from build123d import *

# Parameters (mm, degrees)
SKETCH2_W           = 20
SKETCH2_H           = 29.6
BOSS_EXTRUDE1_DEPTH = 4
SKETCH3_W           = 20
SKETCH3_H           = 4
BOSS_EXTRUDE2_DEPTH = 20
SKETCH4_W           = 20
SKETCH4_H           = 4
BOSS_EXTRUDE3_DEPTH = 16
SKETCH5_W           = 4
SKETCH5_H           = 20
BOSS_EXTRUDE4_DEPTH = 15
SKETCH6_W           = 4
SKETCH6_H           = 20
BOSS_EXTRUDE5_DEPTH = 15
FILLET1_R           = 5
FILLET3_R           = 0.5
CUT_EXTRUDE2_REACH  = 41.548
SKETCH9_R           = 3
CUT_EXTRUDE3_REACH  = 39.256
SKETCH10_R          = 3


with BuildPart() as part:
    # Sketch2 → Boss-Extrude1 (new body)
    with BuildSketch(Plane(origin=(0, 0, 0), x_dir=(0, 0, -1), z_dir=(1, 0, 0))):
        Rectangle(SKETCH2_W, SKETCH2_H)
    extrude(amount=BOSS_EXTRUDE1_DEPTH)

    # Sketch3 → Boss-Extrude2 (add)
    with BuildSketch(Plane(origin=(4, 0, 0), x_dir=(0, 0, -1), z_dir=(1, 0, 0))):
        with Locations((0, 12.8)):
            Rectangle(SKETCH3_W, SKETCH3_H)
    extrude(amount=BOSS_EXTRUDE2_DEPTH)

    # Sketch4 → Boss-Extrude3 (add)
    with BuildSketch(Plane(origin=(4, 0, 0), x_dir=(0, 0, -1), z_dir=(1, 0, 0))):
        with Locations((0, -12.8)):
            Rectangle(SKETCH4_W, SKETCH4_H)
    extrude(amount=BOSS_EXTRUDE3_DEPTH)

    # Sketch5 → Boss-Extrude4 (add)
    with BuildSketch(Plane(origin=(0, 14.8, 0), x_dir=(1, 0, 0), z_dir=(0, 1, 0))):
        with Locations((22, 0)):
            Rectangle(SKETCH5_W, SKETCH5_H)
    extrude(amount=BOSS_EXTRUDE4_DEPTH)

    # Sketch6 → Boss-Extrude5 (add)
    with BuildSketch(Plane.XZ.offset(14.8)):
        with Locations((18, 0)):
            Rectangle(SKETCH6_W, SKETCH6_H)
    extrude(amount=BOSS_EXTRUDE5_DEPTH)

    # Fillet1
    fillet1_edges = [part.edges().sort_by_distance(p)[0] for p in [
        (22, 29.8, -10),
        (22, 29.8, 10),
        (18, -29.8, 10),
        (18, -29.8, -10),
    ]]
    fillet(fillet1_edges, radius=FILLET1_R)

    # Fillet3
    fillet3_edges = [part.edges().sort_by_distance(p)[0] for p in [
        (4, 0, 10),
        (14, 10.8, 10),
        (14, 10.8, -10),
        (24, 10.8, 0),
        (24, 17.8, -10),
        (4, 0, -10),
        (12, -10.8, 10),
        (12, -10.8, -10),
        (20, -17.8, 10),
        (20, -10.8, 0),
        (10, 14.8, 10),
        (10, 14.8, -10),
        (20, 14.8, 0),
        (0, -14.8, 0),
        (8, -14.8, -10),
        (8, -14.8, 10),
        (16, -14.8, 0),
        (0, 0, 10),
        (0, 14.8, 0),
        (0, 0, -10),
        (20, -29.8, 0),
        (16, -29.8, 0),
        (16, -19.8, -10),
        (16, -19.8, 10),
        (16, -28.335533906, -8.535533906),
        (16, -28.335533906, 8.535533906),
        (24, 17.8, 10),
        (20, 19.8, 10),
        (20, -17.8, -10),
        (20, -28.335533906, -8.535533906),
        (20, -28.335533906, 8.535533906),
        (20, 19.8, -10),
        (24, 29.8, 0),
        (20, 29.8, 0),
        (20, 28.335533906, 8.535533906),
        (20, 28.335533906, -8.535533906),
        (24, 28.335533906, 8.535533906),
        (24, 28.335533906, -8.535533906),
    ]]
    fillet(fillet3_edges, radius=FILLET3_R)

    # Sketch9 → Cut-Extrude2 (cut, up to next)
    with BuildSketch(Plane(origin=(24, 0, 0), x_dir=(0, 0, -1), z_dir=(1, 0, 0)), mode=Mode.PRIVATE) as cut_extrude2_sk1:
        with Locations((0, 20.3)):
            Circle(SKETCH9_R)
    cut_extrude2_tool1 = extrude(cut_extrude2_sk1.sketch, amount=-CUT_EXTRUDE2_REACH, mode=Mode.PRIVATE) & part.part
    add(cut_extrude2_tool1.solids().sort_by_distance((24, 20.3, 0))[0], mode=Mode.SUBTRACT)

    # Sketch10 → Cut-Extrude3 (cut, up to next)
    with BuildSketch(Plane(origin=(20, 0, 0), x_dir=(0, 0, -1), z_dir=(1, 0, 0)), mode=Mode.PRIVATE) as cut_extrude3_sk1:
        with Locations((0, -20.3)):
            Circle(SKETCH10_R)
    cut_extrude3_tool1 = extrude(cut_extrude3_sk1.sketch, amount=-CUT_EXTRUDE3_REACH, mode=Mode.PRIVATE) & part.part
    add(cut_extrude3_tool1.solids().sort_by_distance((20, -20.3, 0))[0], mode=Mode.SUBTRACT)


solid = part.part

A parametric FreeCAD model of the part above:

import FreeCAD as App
import Part
import Sketcher

V = App.Vector


def edges_at(feature, points):
    """Names of the edges that pass closest to the given points."""
    edges = feature.Shape.Edges
    near = lambda p: min(range(len(edges)), key=lambda i: edges[i].distToShape(Part.Vertex(*p))[0])
    return sorted({f"Edge{near(p) + 1}" for p in points})

doc = App.newDocument("Part")
body = doc.addObject("PartDesign::Body", "Body")

# Sketch on YZ plane
sketch1 = doc.addObject("Sketcher::SketchObject", "Sketch")
body.addObject(sketch1)
sketch1.AttachmentSupport = (doc.YZ_Plane, [""])
sketch1.MapMode = "FlatFace"
sketch1.addGeometry([
    Part.LineSegment(V(15, 10, 0), V(-15, 10, 0)),
    Part.LineSegment(V(-15, 10, 0), V(-15, -10, 0)),
    Part.LineSegment(V(-15, -10, 0), V(15, -10, 0)),
    Part.LineSegment(V(15, -10, 0), V(15, 10, 0)),
], False)
sketch1.addConstraint([
    Sketcher.Constraint("Coincident", 0, 2, 1, 1),
    Sketcher.Constraint("Coincident", 1, 2, 2, 1),
    Sketcher.Constraint("Coincident", 2, 2, 3, 1),
    Sketcher.Constraint("Coincident", 3, 2, 0, 1),
    Sketcher.Constraint("Horizontal", 0),
    Sketcher.Constraint("Vertical", 1),
    Sketcher.Constraint("Horizontal", 2),
    Sketcher.Constraint("Vertical", 3),
    Sketcher.Constraint("Symmetric", 0, 2, 2, 2, -1, 1),
    Sketcher.Constraint("DistanceY", 1, 2, 1, 1, 20.0),
    Sketcher.Constraint("DistanceX", 0, 2, 0, 1, 29.6),
])
pad1 = doc.addObject("PartDesign::Pad", "Pad")
body.addObject(pad1)
pad1.Profile = sketch1
pad1.Length = 4

# Sketch on YZ plane
sketch2 = doc.addObject("Sketcher::SketchObject", "Sketch001")
body.addObject(sketch2)
sketch2.AttachmentSupport = (doc.YZ_Plane, [""])
sketch2.MapMode = "FlatFace"
sketch2.AttachmentOffset = App.Placement(V(0, 0, 4), App.Rotation())
sketch2.addGeometry([
    Part.LineSegment(V(14.8, 10, 0), V(10.8, 10, 0)),
    Part.LineSegment(V(10.8, 10, 0), V(10.8, -10, 0)),
    Part.LineSegment(V(10.8, -10, 0), V(14.8, -10, 0)),
    Part.LineSegment(V(14.8, -10, 0), V(14.8, 10, 0)),
], False)
sketch2.addConstraint([
    Sketcher.Constraint("Coincident", 0, 2, 1, 1),
    Sketcher.Constraint("Coincident", 1, 2, 2, 1),
    Sketcher.Constraint("Coincident", 2, 2, 3, 1),
    Sketcher.Constraint("Coincident", 3, 2, 0, 1),
    Sketcher.Constraint("Horizontal", 0),
    Sketcher.Constraint("Vertical", 1),
    Sketcher.Constraint("Horizontal", 2),
    Sketcher.Constraint("Vertical", 3),
    Sketcher.Constraint("DistanceX", 0, 2, 0, 1, 4.0),
    Sketcher.Constraint("DistanceY", 1, 2, 1, 1, 20.0),
    Sketcher.Constraint("DistanceY", -1, 1, 0, 2, 10.0),
    Sketcher.Constraint("DistanceX", -1, 1, 0, 2, 10.8),
])
pad2 = doc.addObject("PartDesign::Pad", "Pad001")
body.addObject(pad2)
pad2.Profile = sketch2
pad2.Length = 20

# Sketch on YZ plane
sketch3 = doc.addObject("Sketcher::SketchObject", "Sketch002")
body.addObject(sketch3)
sketch3.AttachmentSupport = (doc.YZ_Plane, [""])
sketch3.MapMode = "FlatFace"
sketch3.AttachmentOffset = App.Placement(V(0, 0, 4), App.Rotation())
sketch3.addGeometry([
    Part.LineSegment(V(-10.8, 10, 0), V(-14.8, 10, 0)),
    Part.LineSegment(V(-14.8, 10, 0), V(-14.8, -10, 0)),
    Part.LineSegment(V(-14.8, -10, 0), V(-10.8, -10, 0)),
    Part.LineSegment(V(-10.8, -10, 0), V(-10.8, 10, 0)),
], False)
sketch3.addConstraint([
    Sketcher.Constraint("Coincident", 0, 2, 1, 1),
    Sketcher.Constraint("Coincident", 1, 2, 2, 1),
    Sketcher.Constraint("Coincident", 2, 2, 3, 1),
    Sketcher.Constraint("Coincident", 3, 2, 0, 1),
    Sketcher.Constraint("Horizontal", 0),
    Sketcher.Constraint("Vertical", 1),
    Sketcher.Constraint("Horizontal", 2),
    Sketcher.Constraint("Vertical", 3),
    Sketcher.Constraint("DistanceX", 0, 2, 0, 1, 4.0),
    Sketcher.Constraint("DistanceY", 1, 2, 1, 1, 20.0),
    Sketcher.Constraint("DistanceY", -1, 1, 0, 2, 10.0),
    Sketcher.Constraint("DistanceX", 0, 2, -1, 1, 14.8),
])
pad3 = doc.addObject("PartDesign::Pad", "Pad002")
body.addObject(pad3)
pad3.Profile = sketch3
pad3.Length = 16

# Sketch on XZ plane
sketch4 = doc.addObject("Sketcher::SketchObject", "Sketch003")
body.addObject(sketch4)
sketch4.AttachmentSupport = (doc.XZ_Plane, [""])
sketch4.MapMode = "FlatFace"
sketch4.AttachmentOffset = App.Placement(V(0, 0, -14.8), App.Rotation())
sketch4.addGeometry([
    Part.LineSegment(V(20, -10, 0), V(20, 10, 0)),
    Part.LineSegment(V(20, 10, 0), V(24, 10, 0)),
    Part.LineSegment(V(24, 10, 0), V(24, -10, 0)),
    Part.LineSegment(V(24, -10, 0), V(20, -10, 0)),
], False)
sketch4.addConstraint([
    Sketcher.Constraint("Coincident", 0, 2, 1, 1),
    Sketcher.Constraint("Coincident", 1, 2, 2, 1),
    Sketcher.Constraint("Coincident", 2, 2, 3, 1),
    Sketcher.Constraint("Coincident", 3, 2, 0, 1),
    Sketcher.Constraint("Vertical", 0),
    Sketcher.Constraint("Horizontal", 1),
    Sketcher.Constraint("Vertical", 2),
    Sketcher.Constraint("Horizontal", 3),
    Sketcher.Constraint("DistanceX", 1, 1, 1, 2, 4.0),
    Sketcher.Constraint("DistanceY", 0, 1, 0, 2, 20.0),
    Sketcher.Constraint("DistanceX", -1, 1, 0, 2, 20.0),
    Sketcher.Constraint("DistanceY", -1, 1, 0, 2, 10.0),
])
pad4 = doc.addObject("PartDesign::Pad", "Pad003")
body.addObject(pad4)
pad4.Profile = sketch4
pad4.Length = 15
pad4.Reversed = True

# Sketch on XZ plane
sketch5 = doc.addObject("Sketcher::SketchObject", "Sketch004")
body.addObject(sketch5)
sketch5.AttachmentSupport = (doc.XZ_Plane, [""])
sketch5.MapMode = "FlatFace"
sketch5.AttachmentOffset = App.Placement(V(0, 0, 14.8), App.Rotation())
sketch5.addGeometry([
    Part.LineSegment(V(16, 10, 0), V(16, -10, 0)),
    Part.LineSegment(V(16, -10, 0), V(20, -10, 0)),
    Part.LineSegment(V(20, -10, 0), V(20, 10, 0)),
    Part.LineSegment(V(20, 10, 0), V(16, 10, 0)),
], False)
sketch5.addConstraint([
    Sketcher.Constraint("Coincident", 0, 2, 1, 1),
    Sketcher.Constraint("Coincident", 1, 2, 2, 1),
    Sketcher.Constraint("Coincident", 2, 2, 3, 1),
    Sketcher.Constraint("Coincident", 3, 2, 0, 1),
    Sketcher.Constraint("Vertical", 0),
    Sketcher.Constraint("Horizontal", 1),
    Sketcher.Constraint("Vertical", 2),
    Sketcher.Constraint("Horizontal", 3),
    Sketcher.Constraint("DistanceX", 1, 1, 1, 2, 4.0),
    Sketcher.Constraint("DistanceY", 0, 2, 0, 1, 20.0),
    Sketcher.Constraint("DistanceX", -1, 1, 0, 2, 16.0),
    Sketcher.Constraint("DistanceY", 0, 2, -1, 1, 10.0),
])
pad5 = doc.addObject("PartDesign::Pad", "Pad004")
body.addObject(pad5)
pad5.Profile = sketch5
pad5.Length = 15
doc.recompute()

fillet = doc.addObject("PartDesign::Fillet", "Fillet")
body.addObject(fillet)
fillet.Base = (pad5, edges_at(pad5, [
    (22, 29.8, -10),
    (22, 29.8, 10),
    (18, -29.8, 10),
    (18, -29.8, -10),
]))
fillet.Radius = 5
doc.recompute()

fillet2 = doc.addObject("PartDesign::Fillet", "Fillet001")
body.addObject(fillet2)
fillet2.Base = (fillet, edges_at(fillet, [
    (4, 0, 10),
    (14, 10.8, 10),
    (14, 10.8, -10),
    (24, 10.8, 0),
    (24, 17.8, -10),
    (4, 0, -10),
    (12, -10.8, 10),
    (12, -10.8, -10),
    (20, -17.8, 10),
    (20, -10.8, 0),
    (10, 14.8, 10),
    (10, 14.8, -10),
    (20, 14.8, 0),
    (0, -14.8, 0),
    (8, -14.8, -10),
    (8, -14.8, 10),
    (16, -14.8, 0),
    (0, 0, 10),
    (0, 14.8, 0),
    (0, 0, -10),
    (20, -29.8, 0),
    (16, -29.8, 0),
    (16, -19.8, -10),
    (16, -19.8, 10),
    (16, -28.336, -8.536),
    (16, -28.336, 8.536),
    (24, 17.8, 10),
    (20, 19.8, 10),
    (20, -17.8, -10),
    (20, -28.336, -8.536),
    (20, -28.336, 8.536),
    (20, 19.8, -10),
    (24, 29.8, 0),
    (20, 29.8, 0),
    (20, 28.336, 8.536),
    (20, 28.336, -8.536),
    (24, 28.336, 8.536),
    (24, 28.336, -8.536),
]))
fillet2.Radius = 0.5

# Sketch on YZ plane
sketch6 = doc.addObject("Sketcher::SketchObject", "Sketch005")
body.addObject(sketch6)
sketch6.AttachmentSupport = (doc.YZ_Plane, [""])
sketch6.MapMode = "FlatFace"
sketch6.AttachmentOffset = App.Placement(V(0, 0, 24), App.Rotation())
sketch6.addGeometry(Part.Circle(V(20.3, 0, 0), V(0, 0, 1), 3), False)
sketch6.addConstraint([
    Sketcher.Constraint("PointOnObject", 0, 3, -1),
    Sketcher.Constraint("Diameter", 0, 6.0),
    Sketcher.Constraint("DistanceX", -1, 1, 0, 3, 20.3),
])
pocket1 = doc.addObject("PartDesign::Pocket", "Pocket")
body.addObject(pocket1)
pocket1.Profile = sketch6
pocket1.Type = "UpToFirst"

# Sketch on YZ plane
sketch7 = doc.addObject("Sketcher::SketchObject", "Sketch006")
body.addObject(sketch7)
sketch7.AttachmentSupport = (doc.YZ_Plane, [""])
sketch7.MapMode = "FlatFace"
sketch7.AttachmentOffset = App.Placement(V(0, 0, 20), App.Rotation())
sketch7.addGeometry(Part.Circle(V(-20.3, 0, 0), V(0, 0, 1), 3), False)
sketch7.addConstraint([
    Sketcher.Constraint("PointOnObject", 0, 3, -1),
    Sketcher.Constraint("Diameter", 0, 6.0),
    Sketcher.Constraint("DistanceX", 0, 3, -1, 1, 20.3),
])
pocket2 = doc.addObject("PartDesign::Pocket", "Pocket001")
body.addObject(pocket2)
pocket2.Profile = sketch7
pocket2.Type = "UpToFirst"

doc.recompute()
